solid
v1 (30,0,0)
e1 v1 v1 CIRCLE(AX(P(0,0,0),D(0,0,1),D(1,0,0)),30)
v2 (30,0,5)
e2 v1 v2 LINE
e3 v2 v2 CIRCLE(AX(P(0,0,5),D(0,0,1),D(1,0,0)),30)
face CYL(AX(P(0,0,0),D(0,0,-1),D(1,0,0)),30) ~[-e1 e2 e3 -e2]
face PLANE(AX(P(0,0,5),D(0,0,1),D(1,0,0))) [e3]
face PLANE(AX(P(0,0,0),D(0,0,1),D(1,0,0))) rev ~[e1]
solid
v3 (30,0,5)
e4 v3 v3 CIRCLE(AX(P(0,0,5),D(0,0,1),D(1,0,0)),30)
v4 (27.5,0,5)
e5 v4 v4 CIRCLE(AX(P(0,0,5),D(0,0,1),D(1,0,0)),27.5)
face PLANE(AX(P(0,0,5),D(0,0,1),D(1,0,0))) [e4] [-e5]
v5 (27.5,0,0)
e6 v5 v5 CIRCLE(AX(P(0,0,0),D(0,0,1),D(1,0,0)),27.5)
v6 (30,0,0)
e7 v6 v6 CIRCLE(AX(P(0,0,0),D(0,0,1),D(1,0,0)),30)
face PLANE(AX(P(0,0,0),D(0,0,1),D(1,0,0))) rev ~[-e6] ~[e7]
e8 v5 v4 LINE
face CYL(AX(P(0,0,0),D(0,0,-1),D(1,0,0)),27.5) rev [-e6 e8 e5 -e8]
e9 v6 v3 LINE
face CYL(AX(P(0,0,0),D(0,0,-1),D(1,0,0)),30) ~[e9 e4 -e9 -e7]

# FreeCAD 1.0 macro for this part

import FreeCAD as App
import Part
import Sketcher

V = App.Vector

doc = App.newDocument("Part")
body = doc.addObject("PartDesign::Body", "Body")

# Sketch on XY plane
sketch1 = body.newObject("Sketcher::SketchObject", "Sketch")
sketch1.AttachmentSupport = (doc.getObject("XY_Plane"), [""])
sketch1.MapMode = "FlatFace"
sketch1.addGeometry([
    Part.Circle(V(0, 0, 0), V(0, 0, 1), 30),
    Part.Circle(V(0, 0, 0), V(0, 0, 1), 27.5),
], False)
sketch1.addConstraint([
    Sketcher.Constraint("Coincident", 0, 3, -1, 1),
    Sketcher.Constraint("Coincident", 1, 3, -1, 1),
    Sketcher.Constraint("Diameter", 0, 60.0),
    Sketcher.Constraint("Diameter", 1, 55.0),
])
pad1 = body.newObject("PartDesign::Pad", "Pad")
pad1.Profile = sketch1
pad1.Length = 5
body2 = doc.addObject("PartDesign::Body", "Body001")

# Sketch on XY plane
sketch2 = body2.newObject("Sketcher::SketchObject", "Sketch001")
sketch2.AttachmentSupport = (doc.getObject("XY_Plane001"), [""])
sketch2.MapMode = "FlatFace"
sketch2.addGeometry(Part.Circle(V(0, 0, 0), V(0, 0, 1), 30), False)
sketch2.addConstraint([
    Sketcher.Constraint("Coincident", 0, 3, -1, 1),
    Sketcher.Constraint("Diameter", 0, 60.0),
])
pad2 = body2.newObject("PartDesign::Pad", "Pad001")
pad2.Profile = sketch2
pad2.Length = 5

doc.recompute()
